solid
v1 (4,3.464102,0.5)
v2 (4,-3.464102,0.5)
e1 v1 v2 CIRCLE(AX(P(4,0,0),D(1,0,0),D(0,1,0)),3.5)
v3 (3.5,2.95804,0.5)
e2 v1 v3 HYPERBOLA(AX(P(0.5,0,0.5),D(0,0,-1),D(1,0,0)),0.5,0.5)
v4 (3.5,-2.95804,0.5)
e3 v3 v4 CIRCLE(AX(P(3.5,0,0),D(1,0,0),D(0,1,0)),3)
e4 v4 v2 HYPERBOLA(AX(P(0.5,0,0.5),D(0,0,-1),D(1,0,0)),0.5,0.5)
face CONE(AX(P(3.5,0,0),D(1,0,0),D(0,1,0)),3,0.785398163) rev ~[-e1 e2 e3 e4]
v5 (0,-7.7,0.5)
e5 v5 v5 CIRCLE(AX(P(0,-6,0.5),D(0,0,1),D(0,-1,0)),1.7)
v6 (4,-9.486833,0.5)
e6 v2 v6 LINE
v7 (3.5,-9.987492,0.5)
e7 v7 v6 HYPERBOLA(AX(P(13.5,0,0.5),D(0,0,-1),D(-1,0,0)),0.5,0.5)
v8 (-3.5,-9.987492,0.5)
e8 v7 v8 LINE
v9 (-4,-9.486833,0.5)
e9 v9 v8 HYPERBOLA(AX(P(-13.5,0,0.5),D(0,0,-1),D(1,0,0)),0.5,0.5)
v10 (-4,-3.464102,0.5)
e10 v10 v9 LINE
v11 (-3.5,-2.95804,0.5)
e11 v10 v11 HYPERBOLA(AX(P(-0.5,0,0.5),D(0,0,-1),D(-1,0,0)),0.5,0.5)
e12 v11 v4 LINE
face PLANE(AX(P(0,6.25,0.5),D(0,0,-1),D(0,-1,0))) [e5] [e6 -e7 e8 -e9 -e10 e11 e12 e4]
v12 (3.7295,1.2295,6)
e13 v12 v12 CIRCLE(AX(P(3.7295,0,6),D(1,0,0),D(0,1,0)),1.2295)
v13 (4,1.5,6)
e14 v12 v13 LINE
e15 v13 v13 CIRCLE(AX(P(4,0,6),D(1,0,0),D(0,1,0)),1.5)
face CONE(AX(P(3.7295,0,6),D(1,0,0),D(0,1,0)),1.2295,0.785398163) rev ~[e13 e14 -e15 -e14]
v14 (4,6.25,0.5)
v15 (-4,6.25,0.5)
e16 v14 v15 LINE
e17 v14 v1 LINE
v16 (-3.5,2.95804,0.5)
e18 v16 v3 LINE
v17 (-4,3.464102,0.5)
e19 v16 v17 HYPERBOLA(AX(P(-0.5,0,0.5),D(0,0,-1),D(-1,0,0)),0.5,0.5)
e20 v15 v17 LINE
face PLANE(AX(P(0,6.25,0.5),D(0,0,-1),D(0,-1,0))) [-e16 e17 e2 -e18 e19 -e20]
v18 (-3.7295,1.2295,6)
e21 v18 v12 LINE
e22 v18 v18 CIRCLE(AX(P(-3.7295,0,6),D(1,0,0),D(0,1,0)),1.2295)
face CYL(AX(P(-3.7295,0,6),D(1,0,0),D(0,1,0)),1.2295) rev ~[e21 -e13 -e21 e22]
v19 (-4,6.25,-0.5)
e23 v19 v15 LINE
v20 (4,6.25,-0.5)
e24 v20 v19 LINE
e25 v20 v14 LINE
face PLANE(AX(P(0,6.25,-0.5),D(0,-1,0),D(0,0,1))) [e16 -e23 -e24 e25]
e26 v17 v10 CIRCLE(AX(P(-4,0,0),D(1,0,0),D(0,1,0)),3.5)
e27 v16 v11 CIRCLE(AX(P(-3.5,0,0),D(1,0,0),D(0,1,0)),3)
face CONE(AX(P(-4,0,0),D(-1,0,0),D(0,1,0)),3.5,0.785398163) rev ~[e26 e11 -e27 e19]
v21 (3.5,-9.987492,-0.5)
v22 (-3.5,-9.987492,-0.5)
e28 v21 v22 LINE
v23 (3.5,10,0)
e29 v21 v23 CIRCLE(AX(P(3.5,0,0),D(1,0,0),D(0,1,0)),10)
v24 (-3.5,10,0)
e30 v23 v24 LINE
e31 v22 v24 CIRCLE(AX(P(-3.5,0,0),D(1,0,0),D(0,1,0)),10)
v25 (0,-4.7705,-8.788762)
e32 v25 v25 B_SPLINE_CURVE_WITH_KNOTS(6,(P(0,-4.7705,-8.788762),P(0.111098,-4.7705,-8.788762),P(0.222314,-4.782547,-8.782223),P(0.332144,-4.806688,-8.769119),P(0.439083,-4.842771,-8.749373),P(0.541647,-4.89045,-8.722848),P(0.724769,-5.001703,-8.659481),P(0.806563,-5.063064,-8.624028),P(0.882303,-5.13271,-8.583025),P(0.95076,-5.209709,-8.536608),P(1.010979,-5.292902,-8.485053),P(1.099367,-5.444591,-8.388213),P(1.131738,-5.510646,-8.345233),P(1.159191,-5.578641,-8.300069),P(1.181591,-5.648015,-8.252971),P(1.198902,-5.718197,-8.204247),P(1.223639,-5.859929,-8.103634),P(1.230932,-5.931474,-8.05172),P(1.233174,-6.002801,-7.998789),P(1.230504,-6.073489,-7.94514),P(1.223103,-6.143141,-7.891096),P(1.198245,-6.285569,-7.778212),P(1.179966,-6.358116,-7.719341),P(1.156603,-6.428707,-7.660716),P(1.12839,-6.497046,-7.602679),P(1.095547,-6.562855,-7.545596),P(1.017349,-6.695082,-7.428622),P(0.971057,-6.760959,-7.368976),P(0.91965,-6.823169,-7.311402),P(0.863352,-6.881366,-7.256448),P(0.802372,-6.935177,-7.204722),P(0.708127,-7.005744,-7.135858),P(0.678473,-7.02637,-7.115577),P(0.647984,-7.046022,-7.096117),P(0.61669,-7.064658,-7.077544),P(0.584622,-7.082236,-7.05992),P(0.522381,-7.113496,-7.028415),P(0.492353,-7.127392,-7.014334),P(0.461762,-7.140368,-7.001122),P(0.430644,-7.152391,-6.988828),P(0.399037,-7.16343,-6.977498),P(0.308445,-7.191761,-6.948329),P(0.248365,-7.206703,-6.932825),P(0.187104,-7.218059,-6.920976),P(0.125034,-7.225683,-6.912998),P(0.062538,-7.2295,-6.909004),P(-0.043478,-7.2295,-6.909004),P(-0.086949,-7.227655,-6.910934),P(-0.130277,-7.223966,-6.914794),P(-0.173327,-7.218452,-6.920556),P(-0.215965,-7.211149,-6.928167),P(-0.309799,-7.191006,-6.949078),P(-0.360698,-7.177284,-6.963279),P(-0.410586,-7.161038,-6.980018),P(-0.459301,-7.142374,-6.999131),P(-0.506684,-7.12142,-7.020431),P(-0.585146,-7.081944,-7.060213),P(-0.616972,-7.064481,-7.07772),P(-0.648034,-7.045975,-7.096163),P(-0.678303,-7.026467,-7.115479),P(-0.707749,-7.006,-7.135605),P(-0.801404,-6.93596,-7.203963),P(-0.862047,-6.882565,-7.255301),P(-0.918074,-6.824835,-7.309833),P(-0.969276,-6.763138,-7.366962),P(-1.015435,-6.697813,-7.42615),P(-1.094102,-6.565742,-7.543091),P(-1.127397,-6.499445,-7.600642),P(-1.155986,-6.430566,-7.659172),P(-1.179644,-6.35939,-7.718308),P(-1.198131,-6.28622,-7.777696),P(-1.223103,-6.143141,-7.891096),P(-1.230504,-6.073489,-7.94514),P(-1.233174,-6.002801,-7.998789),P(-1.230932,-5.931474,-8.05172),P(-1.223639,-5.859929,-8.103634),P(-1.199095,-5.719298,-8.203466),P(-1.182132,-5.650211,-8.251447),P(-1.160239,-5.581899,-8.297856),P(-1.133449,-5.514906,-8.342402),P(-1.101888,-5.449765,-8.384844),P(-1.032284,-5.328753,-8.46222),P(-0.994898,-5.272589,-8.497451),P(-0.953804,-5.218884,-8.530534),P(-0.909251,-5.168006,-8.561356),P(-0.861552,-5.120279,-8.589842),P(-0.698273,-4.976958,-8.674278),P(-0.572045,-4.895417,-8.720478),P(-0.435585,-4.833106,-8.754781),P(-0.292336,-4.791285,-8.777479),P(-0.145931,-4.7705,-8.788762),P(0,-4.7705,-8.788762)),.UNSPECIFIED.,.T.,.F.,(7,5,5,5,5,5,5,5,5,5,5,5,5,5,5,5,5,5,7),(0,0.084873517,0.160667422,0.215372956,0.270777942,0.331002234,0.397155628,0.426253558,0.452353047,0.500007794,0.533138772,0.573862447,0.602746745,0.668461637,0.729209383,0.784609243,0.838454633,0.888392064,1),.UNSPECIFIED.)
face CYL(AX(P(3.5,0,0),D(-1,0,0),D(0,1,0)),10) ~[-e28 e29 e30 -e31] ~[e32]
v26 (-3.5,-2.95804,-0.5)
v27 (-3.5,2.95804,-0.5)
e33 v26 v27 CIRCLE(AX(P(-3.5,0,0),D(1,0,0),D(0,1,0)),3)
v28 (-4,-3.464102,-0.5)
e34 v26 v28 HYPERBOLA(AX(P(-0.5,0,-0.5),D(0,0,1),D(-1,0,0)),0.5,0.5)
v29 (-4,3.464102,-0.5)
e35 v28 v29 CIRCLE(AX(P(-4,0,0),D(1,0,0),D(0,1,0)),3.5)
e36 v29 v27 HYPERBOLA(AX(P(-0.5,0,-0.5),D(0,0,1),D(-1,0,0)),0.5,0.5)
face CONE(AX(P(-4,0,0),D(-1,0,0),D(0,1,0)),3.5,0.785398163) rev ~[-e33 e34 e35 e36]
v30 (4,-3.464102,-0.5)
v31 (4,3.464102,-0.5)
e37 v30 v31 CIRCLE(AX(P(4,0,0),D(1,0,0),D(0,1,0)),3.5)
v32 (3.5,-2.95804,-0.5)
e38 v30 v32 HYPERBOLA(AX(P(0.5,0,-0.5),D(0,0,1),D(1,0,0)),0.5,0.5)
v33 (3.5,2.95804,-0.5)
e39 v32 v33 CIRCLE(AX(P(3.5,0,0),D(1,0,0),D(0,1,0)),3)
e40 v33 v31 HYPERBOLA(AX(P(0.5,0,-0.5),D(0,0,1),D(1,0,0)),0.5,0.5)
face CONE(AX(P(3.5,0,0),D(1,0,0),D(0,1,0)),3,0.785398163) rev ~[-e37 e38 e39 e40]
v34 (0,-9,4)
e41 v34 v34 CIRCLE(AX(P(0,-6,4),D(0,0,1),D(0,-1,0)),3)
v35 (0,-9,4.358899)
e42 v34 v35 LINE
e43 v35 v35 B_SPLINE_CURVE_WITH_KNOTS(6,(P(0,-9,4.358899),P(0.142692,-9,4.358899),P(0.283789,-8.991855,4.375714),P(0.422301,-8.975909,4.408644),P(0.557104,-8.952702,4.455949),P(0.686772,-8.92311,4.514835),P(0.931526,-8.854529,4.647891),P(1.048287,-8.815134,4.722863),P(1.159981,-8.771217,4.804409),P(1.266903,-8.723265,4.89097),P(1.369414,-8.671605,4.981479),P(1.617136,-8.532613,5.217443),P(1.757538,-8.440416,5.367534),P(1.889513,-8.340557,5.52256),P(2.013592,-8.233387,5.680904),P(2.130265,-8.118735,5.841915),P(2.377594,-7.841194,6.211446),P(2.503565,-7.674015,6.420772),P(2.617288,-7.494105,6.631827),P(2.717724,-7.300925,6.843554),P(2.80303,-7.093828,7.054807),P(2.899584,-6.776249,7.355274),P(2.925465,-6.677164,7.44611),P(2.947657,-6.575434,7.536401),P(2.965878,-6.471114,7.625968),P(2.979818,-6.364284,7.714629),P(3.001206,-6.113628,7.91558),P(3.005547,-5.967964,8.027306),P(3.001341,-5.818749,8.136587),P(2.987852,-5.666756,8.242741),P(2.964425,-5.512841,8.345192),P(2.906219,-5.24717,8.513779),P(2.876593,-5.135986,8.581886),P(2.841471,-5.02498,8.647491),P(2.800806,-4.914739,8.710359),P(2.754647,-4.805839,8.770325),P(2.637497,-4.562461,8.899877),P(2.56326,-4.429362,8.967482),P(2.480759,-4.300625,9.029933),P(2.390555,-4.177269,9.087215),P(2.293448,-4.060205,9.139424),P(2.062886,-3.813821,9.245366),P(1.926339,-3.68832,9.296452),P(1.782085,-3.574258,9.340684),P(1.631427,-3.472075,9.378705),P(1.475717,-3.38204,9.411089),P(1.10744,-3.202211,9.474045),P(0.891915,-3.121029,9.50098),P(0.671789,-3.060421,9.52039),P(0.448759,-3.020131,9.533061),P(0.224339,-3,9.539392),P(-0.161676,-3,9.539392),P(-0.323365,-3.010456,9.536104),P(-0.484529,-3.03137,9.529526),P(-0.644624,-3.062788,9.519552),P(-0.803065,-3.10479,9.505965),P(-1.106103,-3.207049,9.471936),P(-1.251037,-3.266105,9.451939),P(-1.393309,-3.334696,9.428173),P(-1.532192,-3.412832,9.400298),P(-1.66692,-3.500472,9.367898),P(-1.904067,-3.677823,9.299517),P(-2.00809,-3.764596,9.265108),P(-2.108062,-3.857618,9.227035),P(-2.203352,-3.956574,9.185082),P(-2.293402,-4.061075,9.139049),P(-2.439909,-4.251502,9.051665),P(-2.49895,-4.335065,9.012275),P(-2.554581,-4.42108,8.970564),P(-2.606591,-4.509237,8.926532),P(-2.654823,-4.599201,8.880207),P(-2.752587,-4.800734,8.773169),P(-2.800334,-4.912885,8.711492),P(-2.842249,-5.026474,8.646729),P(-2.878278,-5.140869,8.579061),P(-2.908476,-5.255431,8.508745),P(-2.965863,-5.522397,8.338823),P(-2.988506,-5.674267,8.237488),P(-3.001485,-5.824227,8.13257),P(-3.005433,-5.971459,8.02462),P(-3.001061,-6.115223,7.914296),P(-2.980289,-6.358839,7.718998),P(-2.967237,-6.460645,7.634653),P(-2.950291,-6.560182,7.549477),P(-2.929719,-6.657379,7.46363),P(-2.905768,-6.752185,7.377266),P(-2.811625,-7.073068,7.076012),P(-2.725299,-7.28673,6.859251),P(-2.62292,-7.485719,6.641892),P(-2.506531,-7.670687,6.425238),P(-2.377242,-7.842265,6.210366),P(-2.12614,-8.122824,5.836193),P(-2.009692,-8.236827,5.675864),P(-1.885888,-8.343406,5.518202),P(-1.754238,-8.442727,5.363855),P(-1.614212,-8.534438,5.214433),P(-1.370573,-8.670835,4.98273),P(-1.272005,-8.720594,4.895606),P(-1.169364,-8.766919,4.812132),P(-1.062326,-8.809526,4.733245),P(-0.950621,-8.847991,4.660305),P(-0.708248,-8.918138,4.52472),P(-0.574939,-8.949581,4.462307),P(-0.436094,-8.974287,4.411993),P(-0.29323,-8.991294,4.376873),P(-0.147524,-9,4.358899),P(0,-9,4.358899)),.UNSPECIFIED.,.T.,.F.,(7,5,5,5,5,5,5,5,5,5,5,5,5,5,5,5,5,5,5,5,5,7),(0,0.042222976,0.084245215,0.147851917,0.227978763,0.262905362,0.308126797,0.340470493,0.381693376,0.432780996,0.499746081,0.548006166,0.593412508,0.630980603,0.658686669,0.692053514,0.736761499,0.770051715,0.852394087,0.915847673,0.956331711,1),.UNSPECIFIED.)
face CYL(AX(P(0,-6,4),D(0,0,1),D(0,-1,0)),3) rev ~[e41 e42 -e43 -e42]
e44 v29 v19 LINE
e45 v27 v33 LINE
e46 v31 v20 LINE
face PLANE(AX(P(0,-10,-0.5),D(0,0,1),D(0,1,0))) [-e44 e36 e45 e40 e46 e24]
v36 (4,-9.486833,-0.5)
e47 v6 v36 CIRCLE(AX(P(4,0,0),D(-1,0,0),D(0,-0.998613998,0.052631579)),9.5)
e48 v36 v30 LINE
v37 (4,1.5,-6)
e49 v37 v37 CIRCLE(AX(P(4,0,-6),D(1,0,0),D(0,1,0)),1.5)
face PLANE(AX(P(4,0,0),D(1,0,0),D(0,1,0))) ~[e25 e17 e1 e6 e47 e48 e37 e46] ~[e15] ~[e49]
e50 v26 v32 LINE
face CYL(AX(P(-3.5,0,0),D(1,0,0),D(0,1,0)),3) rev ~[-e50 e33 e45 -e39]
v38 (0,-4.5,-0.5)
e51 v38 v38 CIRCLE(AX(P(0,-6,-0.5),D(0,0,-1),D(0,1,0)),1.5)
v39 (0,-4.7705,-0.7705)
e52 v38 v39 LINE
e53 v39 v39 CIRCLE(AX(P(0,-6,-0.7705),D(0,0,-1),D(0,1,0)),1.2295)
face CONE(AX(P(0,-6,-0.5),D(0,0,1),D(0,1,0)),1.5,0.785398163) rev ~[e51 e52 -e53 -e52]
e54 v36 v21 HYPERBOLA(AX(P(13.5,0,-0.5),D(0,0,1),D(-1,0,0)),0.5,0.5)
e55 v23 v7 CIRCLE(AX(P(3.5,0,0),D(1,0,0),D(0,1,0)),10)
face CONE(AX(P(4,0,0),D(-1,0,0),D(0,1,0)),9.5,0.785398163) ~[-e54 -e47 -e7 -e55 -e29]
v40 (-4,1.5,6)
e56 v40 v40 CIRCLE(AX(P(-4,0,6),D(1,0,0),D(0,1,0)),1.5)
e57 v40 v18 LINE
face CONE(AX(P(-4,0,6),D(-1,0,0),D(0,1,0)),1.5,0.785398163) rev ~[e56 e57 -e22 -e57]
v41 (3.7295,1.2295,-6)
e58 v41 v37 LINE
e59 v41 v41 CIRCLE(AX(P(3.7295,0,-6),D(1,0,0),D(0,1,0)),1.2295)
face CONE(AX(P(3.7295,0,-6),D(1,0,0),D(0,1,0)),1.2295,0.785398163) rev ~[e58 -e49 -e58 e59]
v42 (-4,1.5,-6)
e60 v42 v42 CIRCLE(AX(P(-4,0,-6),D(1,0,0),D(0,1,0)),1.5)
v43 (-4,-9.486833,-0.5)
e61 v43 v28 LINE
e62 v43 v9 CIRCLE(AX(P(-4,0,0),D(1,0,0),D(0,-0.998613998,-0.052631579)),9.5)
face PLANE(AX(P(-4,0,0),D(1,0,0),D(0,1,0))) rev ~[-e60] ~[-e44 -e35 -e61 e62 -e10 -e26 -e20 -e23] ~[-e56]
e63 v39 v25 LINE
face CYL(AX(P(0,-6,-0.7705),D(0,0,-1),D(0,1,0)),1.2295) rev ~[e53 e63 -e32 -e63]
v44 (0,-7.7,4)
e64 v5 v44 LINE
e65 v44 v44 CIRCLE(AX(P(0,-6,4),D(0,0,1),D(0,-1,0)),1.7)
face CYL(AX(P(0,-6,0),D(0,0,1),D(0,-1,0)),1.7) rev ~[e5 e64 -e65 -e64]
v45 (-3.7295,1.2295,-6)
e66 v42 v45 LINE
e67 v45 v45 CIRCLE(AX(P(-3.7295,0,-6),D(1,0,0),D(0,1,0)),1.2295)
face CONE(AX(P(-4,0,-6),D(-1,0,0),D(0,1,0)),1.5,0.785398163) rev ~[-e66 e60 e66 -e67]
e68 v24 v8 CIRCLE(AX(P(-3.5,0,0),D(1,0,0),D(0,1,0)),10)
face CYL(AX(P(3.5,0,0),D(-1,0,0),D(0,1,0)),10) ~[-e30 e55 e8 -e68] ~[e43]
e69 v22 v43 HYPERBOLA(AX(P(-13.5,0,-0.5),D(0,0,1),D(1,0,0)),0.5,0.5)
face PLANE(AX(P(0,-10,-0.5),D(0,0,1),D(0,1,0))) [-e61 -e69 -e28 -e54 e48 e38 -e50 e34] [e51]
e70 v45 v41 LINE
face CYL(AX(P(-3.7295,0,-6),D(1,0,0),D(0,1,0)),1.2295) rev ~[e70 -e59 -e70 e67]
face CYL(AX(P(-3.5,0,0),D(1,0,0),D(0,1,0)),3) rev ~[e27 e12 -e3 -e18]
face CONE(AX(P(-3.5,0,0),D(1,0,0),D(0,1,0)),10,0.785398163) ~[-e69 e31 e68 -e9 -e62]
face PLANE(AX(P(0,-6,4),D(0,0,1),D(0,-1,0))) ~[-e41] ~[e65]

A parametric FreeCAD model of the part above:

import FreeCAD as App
import Part
import Sketcher

V = App.Vector
Q = App.Units.Quantity

doc = App.newDocument("Part")
body = doc.addObject("PartDesign::Body", "Body")

sketch1 = body.newObject("Sketcher::SketchObject", "Sketch")
sketch1.AttachmentSupport = (doc.getObject("XY_Plane"), [""])
sketch1.MapMode = "FlatFace"
sketch1.addGeometry([
    Part.LineSegment(V(-3.5, 10, 0), V(-4, 9.5, 0)),
    Part.LineSegment(V(-4, 9.5, 0), V(-4, 3.5, 0)),
    Part.LineSegment(V(-4, 3.5, 0), V(-3.5, 3, 0)),
    Part.LineSegment(V(-3.5, 3, 0), V(3.5, 3, 0)),
    Part.LineSegment(V(3.5, 3, 0), V(4, 3.5, 0)),
    Part.LineSegment(V(4, 3.5, 0), V(4, 9.5, 0)),
    Part.LineSegment(V(4, 9.5, 0), V(3.5, 10, 0)),
    Part.LineSegment(V(3.5, 10, 0), V(-3.5, 10, 0)),
], False)
sketch1.addConstraint([
    Sketcher.Constraint("Coincident", 0, 2, 1, 1),
    Sketcher.Constraint("Coincident", 1, 2, 2, 1),
    Sketcher.Constraint("Coincident", 2, 2, 3, 1),
    Sketcher.Constraint("Coincident", 3, 2, 4, 1),
    Sketcher.Constraint("Coincident", 4, 2, 5, 1),
    Sketcher.Constraint("Coincident", 5, 2, 6, 1),
    Sketcher.Constraint("Coincident", 6, 2, 7, 1),
    Sketcher.Constraint("Coincident", 7, 2, 0, 1),
    Sketcher.Constraint("Vertical", 1),
    Sketcher.Constraint("Horizontal", 3),
    Sketcher.Constraint("Vertical", 5),
    Sketcher.Constraint("Horizontal", 7),
    Sketcher.Constraint("Symmetric", 1, 2, 4, 2, -2),
    Sketcher.Constraint("Perpendicular", 0, 2),
    Sketcher.Constraint("Perpendicular", 2, 4),
    Sketcher.Constraint("Perpendicular", 4, 6),
    Sketcher.Constraint("Horizontal", 0, 2, 5, 2),
    Sketcher.Constraint("Vertical", 3, 2, 6, 2),
    Sketcher.Constraint("Vertical", 2, 2, 7, 2),
    Sketcher.Constraint("DistanceX", 3, 1, 3, 2, 7.0),
    Sketcher.Constraint("DistanceY", 1, 2, 1, 1, 6.0),
    Sketcher.Constraint("DistanceX", 0, 2, -1, 1, 4.0),
    Sketcher.Constraint("DistanceY", -1, 1, 2, 2, 3.0),
])
revolution = body.newObject("PartDesign::Revolution", "Revolution")
revolution.Profile = sketch1
revolution.ReferenceAxis = (sketch1, ["H_Axis"])
revolution.Angle = 360

sketch2 = body.newObject("Sketcher::SketchObject", "Sketch001")
sketch2.AttachmentSupport = (doc.getObject("YZ_Plane"), [""])
sketch2.MapMode = "FlatFace"
sketch2.addGeometry([
    Part.LineSegment(V(6.2, 0.5, 0), V(-10, 0.5, 0)),
    Part.LineSegment(V(-10, 0.5, 0), V(-10, -0.5, 0)),
    Part.LineSegment(V(-10, -0.5, 0), V(6.2, -0.5, 0)),
    Part.LineSegment(V(6.2, -0.5, 0), V(6.2, 0.5, 0)),
], False)
sketch2.addConstraint([
    Sketcher.Constraint("Coincident", 0, 2, 1, 1),
    Sketcher.Constraint("Coincident", 1, 2, 2, 1),
    Sketcher.Constraint("Coincident", 2, 2, 3, 1),
    Sketcher.Constraint("Coincident", 3, 2, 0, 1),
    Sketcher.Constraint("Horizontal", 0),
    Sketcher.Constraint("Vertical", 1),
    Sketcher.Constraint("Horizontal", 2),
    Sketcher.Constraint("Vertical", 3),
    Sketcher.Constraint("DistanceY", 1, 2, 1, 1, 1.0),
    Sketcher.Constraint("DistanceX", 0, 2, -1, 1, 10.0),
    Sketcher.Constraint("DistanceX", 0, 2, 0, 1, 16.25),
    Sketcher.Constraint("DistanceY", -1, 1, 0, 2, 0.5),
])
pocket1 = body.newObject("PartDesign::Pocket", "Pocket")
pocket1.Profile = sketch2
pocket1.Length = 8
pocket1.Midplane = True

sketch3 = body.newObject("Sketcher::SketchObject", "Sketch002")
sketch3.AttachmentSupport = (doc.getObject("YZ_Plane"), [""])
sketch3.MapMode = "FlatFace"
sketch3.addGeometry([
    Part.LineSegment(V(-6, 0, 0), V(-6, 10, 0)),
    Part.LineSegment(V(-6, 10, 0), V(-9, 10, 0)),
    Part.LineSegment(V(-9, 10, 0), V(-9, 4, 0)),
    Part.LineSegment(V(-9, 4, 0), V(-7.7, 4, 0)),
    Part.LineSegment(V(-7.7, 4, 0), V(-7.7, 0, 0)),
    Part.LineSegment(V(-7.7, 0, 0), V(-6, 0, 0)),
], False)
sketch3.addGeometry(Part.LineSegment(V(-6, 0, 0), V(-6, 10, 0)), True)
sketch3.addConstraint([
    Sketcher.Constraint("Coincident", 0, 2, 1, 1),
    Sketcher.Constraint("Coincident", 1, 2, 2, 1),
    Sketcher.Constraint("Coincident", 2, 2, 3, 1),
    Sketcher.Constraint("Coincident", 3, 2, 4, 1),
    Sketcher.Constraint("Coincident", 4, 2, 5, 1),
    Sketcher.Constraint("Coincident", 5, 2, 0, 1),
    Sketcher.Constraint("Vertical", 0),
    Sketcher.Constraint("Horizontal", 1),
    Sketcher.Constraint("Vertical", 2),
    Sketcher.Constraint("Horizontal", 3),
    Sketcher.Constraint("Vertical", 4),
    Sketcher.Constraint("Horizontal", 5),
    Sketcher.Constraint("Vertical", 6),
    Sketcher.Constraint("Coincident", 6, 1, 5, 2),
    Sketcher.Constraint("PointOnObject", 4, 2, -1),
    Sketcher.Constraint("Horizontal", 1, 2, 6, 2),
    Sketcher.Constraint("DistanceX", 1, 2, 1, 1, 3.0),
    Sketcher.Constraint("DistanceY", 0, 1, 0, 2, 10.0),
    Sketcher.Constraint("DistanceY", 2, 2, 2, 1, 6.0),
    Sketcher.Constraint("DistanceX", 3, 1, 3, 2, 1.3),
    Sketcher.Constraint("DistanceX", 0, 2, -1, 1, 6.0),
])
groove = body.newObject("PartDesign::Groove", "Groove")
groove.Profile = sketch3
groove.ReferenceAxis = (sketch3, ["Axis0"])
groove.Angle = 360

sketch4 = body.newObject("Sketcher::SketchObject", "Sketch003")
sketch4.AttachmentSupport = (doc.getObject("YZ_Plane"), [""])
sketch4.MapMode = "FlatFace"
sketch4.addGeometry([
    Part.LineSegment(V(-6, -0.5, 0), V(-6, -9.5, 0)),
    Part.LineSegment(V(-6, -9.5, 0), V(-4.77, -9.5, 0)),
    Part.LineSegment(V(-4.77, -9.5, 0), V(-4.77, -0.77, 0)),
    Part.LineSegment(V(-4.77, -0.77, 0), V(-4.5, -0.5, 0)),
    Part.LineSegment(V(-4.5, -0.5, 0), V(-6, -0.5, 0)),
], False)
sketch4.addGeometry(Part.LineSegment(V(-6, -0.5, 0), V(-6, -9.5, 0)), True)
sketch4.addConstraint([
    Sketcher.Constraint("Coincident", 0, 2, 1, 1),
    Sketcher.Constraint("Coincident", 1, 2, 2, 1),
    Sketcher.Constraint("Coincident", 2, 2, 3, 1),
    Sketcher.Constraint("Coincident", 3, 2, 4, 1),
    Sketcher.Constraint("Coincident", 4, 2, 0, 1),
    Sketcher.Constraint("Vertical", 0),
    Sketcher.Constraint("Horizontal", 1),
    Sketcher.Constraint("Vertical", 2),
    Sketcher.Constraint("Horizontal", 4),
    Sketcher.Constraint("Vertical", 5),
    Sketcher.Constraint("Coincident", 5, 1, 4, 2),
    Sketcher.Constraint("Horizontal", 1, 2, 5, 2),
    Sketcher.Constraint("DistanceY", 0, 2, 0, 1, 9.0),
    Sketcher.Constraint("Angle", 3, Q("45 deg")),
    Sketcher.Constraint("DistanceX", 4, 2, 4, 1, 1.5),
    Sketcher.Constraint("DistanceX", 0, 2, -1, 1, 6.0),
    Sketcher.Constraint("DistanceY", 0, 2, -1, 1, 9.5),
    Sketcher.Constraint("DistanceX", 1, 1, 1, 2, 1.2295),
])
groove2 = body.newObject("PartDesign::Groove", "Groove001")
groove2.Profile = sketch4
groove2.ReferenceAxis = (sketch4, ["Axis0"])
groove2.Angle = 360

sketch5 = body.newObject("Sketcher::SketchObject", "Sketch004")
sketch5.AttachmentSupport = (doc.getObject("XY_Plane"), [""])
sketch5.MapMode = "FlatFace"
sketch5.AttachmentOffset = App.Placement(V(0, 0, -6), App.Rotation())
sketch5.addGeometry([
    Part.LineSegment(V(-4, 0, 0), V(4, 0, 0)),
    Part.LineSegment(V(4, 0, 0), V(4, 1.5, 0)),
    Part.LineSegment(V(4, 1.5, 0), V(3.73, 1.23, 0)),
    Part.LineSegment(V(3.73, 1.23, 0), V(-3.73, 1.23, 0)),
    Part.LineSegment(V(-3.73, 1.23, 0), V(-4, 1.5, 0)),
    Part.LineSegment(V(-4, 1.5, 0), V(-4, 0, 0)),
], False)
sketch5.addConstraint([
    Sketcher.Constraint("Coincident", 0, 2, 1, 1),
    Sketcher.Constraint("Coincident", 1, 2, 2, 1),
    Sketcher.Constraint("Coincident", 2, 2, 3, 1),
    Sketcher.Constraint("Coincident", 3, 2, 4, 1),
    Sketcher.Constraint("Coincident", 4, 2, 5, 1),
    Sketcher.Constraint("Coincident", 5, 2, 0, 1),
    Sketcher.Constraint("Horizontal", 0),
    Sketcher.Constraint("Vertical", 1),
    Sketcher.Constraint("Horizontal", 3),
    Sketcher.Constraint("Vertical", 5),
    Sketcher.Constraint("Symmetric", 0, 2, 5, 2, -1, 1),
    Sketcher.Constraint("Perpendicular", 2, 4),
    Sketcher.Constraint("Horizontal", 1, 2, 4, 2),
    Sketcher.Constraint("Equal", 2, 4),
    Sketcher.Constraint("DistanceX", 0, 1, 0, 2, 8.0),
    Sketcher.Constraint("DistanceY", 1, 1, 1, 2, 1.5),
    Sketcher.Constraint("DistanceX", 3, 2, 3, 1, 7.459),
])
groove3 = body.newObject("PartDesign::Groove", "Groove002")
groove3.Profile = sketch5
groove3.ReferenceAxis = (sketch5, ["H_Axis"])
groove3.Angle = 360

sketch6 = body.newObject("Sketcher::SketchObject", "Sketch005")
sketch6.AttachmentSupport = (doc.getObject("XY_Plane"), [""])
sketch6.MapMode = "FlatFace"
sketch6.AttachmentOffset = App.Placement(V(0, 0, 6), App.Rotation())
sketch6.addGeometry([
    Part.LineSegment(V(-4, 0, 0), V(4, 0, 0)),
    Part.LineSegment(V(4, 0, 0), V(4, 1.5, 0)),
    Part.LineSegment(V(4, 1.5, 0), V(3.73, 1.23, 0)),
    Part.LineSegment(V(3.73, 1.23, 0), V(-3.73, 1.23, 0)),
    Part.LineSegment(V(-3.73, 1.23, 0), V(-4, 1.5, 0)),
    Part.LineSegment(V(-4, 1.5, 0), V(-4, 0, 0)),
], False)
sketch6.addConstraint([
    Sketcher.Constraint("Coincident", 0, 2, 1, 1),
    Sketcher.Constraint("Coincident", 1, 2, 2, 1),
    Sketcher.Constraint("Coincident", 2, 2, 3, 1),
    Sketcher.Constraint("Coincident", 3, 2, 4, 1),
    Sketcher.Constraint("Coincident", 4, 2, 5, 1),
    Sketcher.Constraint("Coincident", 5, 2, 0, 1),
    Sketcher.Constraint("Horizontal", 0),
    Sketcher.Constraint("Vertical", 1),
    Sketcher.Constraint("Horizontal", 3),
    Sketcher.Constraint("Vertical", 5),
    Sketcher.Constraint("Symmetric", 0, 2, 5, 2, -1, 1),
    Sketcher.Constraint("Perpendicular", 2, 4),
    Sketcher.Constraint("Horizontal", 1, 2, 4, 2),
    Sketcher.Constraint("Equal", 2, 4),
    Sketcher.Constraint("DistanceX", 0, 1, 0, 2, 8.0),
    Sketcher.Constraint("DistanceY", 1, 1, 1, 2, 1.5),
    Sketcher.Constraint("DistanceX", 3, 2, 3, 1, 7.459),
])
groove4 = body.newObject("PartDesign::Groove", "Groove003")
groove4.Profile = sketch6
groove4.ReferenceAxis = (sketch6, ["H_Axis"])
groove4.Angle = 360

doc.recompute()
